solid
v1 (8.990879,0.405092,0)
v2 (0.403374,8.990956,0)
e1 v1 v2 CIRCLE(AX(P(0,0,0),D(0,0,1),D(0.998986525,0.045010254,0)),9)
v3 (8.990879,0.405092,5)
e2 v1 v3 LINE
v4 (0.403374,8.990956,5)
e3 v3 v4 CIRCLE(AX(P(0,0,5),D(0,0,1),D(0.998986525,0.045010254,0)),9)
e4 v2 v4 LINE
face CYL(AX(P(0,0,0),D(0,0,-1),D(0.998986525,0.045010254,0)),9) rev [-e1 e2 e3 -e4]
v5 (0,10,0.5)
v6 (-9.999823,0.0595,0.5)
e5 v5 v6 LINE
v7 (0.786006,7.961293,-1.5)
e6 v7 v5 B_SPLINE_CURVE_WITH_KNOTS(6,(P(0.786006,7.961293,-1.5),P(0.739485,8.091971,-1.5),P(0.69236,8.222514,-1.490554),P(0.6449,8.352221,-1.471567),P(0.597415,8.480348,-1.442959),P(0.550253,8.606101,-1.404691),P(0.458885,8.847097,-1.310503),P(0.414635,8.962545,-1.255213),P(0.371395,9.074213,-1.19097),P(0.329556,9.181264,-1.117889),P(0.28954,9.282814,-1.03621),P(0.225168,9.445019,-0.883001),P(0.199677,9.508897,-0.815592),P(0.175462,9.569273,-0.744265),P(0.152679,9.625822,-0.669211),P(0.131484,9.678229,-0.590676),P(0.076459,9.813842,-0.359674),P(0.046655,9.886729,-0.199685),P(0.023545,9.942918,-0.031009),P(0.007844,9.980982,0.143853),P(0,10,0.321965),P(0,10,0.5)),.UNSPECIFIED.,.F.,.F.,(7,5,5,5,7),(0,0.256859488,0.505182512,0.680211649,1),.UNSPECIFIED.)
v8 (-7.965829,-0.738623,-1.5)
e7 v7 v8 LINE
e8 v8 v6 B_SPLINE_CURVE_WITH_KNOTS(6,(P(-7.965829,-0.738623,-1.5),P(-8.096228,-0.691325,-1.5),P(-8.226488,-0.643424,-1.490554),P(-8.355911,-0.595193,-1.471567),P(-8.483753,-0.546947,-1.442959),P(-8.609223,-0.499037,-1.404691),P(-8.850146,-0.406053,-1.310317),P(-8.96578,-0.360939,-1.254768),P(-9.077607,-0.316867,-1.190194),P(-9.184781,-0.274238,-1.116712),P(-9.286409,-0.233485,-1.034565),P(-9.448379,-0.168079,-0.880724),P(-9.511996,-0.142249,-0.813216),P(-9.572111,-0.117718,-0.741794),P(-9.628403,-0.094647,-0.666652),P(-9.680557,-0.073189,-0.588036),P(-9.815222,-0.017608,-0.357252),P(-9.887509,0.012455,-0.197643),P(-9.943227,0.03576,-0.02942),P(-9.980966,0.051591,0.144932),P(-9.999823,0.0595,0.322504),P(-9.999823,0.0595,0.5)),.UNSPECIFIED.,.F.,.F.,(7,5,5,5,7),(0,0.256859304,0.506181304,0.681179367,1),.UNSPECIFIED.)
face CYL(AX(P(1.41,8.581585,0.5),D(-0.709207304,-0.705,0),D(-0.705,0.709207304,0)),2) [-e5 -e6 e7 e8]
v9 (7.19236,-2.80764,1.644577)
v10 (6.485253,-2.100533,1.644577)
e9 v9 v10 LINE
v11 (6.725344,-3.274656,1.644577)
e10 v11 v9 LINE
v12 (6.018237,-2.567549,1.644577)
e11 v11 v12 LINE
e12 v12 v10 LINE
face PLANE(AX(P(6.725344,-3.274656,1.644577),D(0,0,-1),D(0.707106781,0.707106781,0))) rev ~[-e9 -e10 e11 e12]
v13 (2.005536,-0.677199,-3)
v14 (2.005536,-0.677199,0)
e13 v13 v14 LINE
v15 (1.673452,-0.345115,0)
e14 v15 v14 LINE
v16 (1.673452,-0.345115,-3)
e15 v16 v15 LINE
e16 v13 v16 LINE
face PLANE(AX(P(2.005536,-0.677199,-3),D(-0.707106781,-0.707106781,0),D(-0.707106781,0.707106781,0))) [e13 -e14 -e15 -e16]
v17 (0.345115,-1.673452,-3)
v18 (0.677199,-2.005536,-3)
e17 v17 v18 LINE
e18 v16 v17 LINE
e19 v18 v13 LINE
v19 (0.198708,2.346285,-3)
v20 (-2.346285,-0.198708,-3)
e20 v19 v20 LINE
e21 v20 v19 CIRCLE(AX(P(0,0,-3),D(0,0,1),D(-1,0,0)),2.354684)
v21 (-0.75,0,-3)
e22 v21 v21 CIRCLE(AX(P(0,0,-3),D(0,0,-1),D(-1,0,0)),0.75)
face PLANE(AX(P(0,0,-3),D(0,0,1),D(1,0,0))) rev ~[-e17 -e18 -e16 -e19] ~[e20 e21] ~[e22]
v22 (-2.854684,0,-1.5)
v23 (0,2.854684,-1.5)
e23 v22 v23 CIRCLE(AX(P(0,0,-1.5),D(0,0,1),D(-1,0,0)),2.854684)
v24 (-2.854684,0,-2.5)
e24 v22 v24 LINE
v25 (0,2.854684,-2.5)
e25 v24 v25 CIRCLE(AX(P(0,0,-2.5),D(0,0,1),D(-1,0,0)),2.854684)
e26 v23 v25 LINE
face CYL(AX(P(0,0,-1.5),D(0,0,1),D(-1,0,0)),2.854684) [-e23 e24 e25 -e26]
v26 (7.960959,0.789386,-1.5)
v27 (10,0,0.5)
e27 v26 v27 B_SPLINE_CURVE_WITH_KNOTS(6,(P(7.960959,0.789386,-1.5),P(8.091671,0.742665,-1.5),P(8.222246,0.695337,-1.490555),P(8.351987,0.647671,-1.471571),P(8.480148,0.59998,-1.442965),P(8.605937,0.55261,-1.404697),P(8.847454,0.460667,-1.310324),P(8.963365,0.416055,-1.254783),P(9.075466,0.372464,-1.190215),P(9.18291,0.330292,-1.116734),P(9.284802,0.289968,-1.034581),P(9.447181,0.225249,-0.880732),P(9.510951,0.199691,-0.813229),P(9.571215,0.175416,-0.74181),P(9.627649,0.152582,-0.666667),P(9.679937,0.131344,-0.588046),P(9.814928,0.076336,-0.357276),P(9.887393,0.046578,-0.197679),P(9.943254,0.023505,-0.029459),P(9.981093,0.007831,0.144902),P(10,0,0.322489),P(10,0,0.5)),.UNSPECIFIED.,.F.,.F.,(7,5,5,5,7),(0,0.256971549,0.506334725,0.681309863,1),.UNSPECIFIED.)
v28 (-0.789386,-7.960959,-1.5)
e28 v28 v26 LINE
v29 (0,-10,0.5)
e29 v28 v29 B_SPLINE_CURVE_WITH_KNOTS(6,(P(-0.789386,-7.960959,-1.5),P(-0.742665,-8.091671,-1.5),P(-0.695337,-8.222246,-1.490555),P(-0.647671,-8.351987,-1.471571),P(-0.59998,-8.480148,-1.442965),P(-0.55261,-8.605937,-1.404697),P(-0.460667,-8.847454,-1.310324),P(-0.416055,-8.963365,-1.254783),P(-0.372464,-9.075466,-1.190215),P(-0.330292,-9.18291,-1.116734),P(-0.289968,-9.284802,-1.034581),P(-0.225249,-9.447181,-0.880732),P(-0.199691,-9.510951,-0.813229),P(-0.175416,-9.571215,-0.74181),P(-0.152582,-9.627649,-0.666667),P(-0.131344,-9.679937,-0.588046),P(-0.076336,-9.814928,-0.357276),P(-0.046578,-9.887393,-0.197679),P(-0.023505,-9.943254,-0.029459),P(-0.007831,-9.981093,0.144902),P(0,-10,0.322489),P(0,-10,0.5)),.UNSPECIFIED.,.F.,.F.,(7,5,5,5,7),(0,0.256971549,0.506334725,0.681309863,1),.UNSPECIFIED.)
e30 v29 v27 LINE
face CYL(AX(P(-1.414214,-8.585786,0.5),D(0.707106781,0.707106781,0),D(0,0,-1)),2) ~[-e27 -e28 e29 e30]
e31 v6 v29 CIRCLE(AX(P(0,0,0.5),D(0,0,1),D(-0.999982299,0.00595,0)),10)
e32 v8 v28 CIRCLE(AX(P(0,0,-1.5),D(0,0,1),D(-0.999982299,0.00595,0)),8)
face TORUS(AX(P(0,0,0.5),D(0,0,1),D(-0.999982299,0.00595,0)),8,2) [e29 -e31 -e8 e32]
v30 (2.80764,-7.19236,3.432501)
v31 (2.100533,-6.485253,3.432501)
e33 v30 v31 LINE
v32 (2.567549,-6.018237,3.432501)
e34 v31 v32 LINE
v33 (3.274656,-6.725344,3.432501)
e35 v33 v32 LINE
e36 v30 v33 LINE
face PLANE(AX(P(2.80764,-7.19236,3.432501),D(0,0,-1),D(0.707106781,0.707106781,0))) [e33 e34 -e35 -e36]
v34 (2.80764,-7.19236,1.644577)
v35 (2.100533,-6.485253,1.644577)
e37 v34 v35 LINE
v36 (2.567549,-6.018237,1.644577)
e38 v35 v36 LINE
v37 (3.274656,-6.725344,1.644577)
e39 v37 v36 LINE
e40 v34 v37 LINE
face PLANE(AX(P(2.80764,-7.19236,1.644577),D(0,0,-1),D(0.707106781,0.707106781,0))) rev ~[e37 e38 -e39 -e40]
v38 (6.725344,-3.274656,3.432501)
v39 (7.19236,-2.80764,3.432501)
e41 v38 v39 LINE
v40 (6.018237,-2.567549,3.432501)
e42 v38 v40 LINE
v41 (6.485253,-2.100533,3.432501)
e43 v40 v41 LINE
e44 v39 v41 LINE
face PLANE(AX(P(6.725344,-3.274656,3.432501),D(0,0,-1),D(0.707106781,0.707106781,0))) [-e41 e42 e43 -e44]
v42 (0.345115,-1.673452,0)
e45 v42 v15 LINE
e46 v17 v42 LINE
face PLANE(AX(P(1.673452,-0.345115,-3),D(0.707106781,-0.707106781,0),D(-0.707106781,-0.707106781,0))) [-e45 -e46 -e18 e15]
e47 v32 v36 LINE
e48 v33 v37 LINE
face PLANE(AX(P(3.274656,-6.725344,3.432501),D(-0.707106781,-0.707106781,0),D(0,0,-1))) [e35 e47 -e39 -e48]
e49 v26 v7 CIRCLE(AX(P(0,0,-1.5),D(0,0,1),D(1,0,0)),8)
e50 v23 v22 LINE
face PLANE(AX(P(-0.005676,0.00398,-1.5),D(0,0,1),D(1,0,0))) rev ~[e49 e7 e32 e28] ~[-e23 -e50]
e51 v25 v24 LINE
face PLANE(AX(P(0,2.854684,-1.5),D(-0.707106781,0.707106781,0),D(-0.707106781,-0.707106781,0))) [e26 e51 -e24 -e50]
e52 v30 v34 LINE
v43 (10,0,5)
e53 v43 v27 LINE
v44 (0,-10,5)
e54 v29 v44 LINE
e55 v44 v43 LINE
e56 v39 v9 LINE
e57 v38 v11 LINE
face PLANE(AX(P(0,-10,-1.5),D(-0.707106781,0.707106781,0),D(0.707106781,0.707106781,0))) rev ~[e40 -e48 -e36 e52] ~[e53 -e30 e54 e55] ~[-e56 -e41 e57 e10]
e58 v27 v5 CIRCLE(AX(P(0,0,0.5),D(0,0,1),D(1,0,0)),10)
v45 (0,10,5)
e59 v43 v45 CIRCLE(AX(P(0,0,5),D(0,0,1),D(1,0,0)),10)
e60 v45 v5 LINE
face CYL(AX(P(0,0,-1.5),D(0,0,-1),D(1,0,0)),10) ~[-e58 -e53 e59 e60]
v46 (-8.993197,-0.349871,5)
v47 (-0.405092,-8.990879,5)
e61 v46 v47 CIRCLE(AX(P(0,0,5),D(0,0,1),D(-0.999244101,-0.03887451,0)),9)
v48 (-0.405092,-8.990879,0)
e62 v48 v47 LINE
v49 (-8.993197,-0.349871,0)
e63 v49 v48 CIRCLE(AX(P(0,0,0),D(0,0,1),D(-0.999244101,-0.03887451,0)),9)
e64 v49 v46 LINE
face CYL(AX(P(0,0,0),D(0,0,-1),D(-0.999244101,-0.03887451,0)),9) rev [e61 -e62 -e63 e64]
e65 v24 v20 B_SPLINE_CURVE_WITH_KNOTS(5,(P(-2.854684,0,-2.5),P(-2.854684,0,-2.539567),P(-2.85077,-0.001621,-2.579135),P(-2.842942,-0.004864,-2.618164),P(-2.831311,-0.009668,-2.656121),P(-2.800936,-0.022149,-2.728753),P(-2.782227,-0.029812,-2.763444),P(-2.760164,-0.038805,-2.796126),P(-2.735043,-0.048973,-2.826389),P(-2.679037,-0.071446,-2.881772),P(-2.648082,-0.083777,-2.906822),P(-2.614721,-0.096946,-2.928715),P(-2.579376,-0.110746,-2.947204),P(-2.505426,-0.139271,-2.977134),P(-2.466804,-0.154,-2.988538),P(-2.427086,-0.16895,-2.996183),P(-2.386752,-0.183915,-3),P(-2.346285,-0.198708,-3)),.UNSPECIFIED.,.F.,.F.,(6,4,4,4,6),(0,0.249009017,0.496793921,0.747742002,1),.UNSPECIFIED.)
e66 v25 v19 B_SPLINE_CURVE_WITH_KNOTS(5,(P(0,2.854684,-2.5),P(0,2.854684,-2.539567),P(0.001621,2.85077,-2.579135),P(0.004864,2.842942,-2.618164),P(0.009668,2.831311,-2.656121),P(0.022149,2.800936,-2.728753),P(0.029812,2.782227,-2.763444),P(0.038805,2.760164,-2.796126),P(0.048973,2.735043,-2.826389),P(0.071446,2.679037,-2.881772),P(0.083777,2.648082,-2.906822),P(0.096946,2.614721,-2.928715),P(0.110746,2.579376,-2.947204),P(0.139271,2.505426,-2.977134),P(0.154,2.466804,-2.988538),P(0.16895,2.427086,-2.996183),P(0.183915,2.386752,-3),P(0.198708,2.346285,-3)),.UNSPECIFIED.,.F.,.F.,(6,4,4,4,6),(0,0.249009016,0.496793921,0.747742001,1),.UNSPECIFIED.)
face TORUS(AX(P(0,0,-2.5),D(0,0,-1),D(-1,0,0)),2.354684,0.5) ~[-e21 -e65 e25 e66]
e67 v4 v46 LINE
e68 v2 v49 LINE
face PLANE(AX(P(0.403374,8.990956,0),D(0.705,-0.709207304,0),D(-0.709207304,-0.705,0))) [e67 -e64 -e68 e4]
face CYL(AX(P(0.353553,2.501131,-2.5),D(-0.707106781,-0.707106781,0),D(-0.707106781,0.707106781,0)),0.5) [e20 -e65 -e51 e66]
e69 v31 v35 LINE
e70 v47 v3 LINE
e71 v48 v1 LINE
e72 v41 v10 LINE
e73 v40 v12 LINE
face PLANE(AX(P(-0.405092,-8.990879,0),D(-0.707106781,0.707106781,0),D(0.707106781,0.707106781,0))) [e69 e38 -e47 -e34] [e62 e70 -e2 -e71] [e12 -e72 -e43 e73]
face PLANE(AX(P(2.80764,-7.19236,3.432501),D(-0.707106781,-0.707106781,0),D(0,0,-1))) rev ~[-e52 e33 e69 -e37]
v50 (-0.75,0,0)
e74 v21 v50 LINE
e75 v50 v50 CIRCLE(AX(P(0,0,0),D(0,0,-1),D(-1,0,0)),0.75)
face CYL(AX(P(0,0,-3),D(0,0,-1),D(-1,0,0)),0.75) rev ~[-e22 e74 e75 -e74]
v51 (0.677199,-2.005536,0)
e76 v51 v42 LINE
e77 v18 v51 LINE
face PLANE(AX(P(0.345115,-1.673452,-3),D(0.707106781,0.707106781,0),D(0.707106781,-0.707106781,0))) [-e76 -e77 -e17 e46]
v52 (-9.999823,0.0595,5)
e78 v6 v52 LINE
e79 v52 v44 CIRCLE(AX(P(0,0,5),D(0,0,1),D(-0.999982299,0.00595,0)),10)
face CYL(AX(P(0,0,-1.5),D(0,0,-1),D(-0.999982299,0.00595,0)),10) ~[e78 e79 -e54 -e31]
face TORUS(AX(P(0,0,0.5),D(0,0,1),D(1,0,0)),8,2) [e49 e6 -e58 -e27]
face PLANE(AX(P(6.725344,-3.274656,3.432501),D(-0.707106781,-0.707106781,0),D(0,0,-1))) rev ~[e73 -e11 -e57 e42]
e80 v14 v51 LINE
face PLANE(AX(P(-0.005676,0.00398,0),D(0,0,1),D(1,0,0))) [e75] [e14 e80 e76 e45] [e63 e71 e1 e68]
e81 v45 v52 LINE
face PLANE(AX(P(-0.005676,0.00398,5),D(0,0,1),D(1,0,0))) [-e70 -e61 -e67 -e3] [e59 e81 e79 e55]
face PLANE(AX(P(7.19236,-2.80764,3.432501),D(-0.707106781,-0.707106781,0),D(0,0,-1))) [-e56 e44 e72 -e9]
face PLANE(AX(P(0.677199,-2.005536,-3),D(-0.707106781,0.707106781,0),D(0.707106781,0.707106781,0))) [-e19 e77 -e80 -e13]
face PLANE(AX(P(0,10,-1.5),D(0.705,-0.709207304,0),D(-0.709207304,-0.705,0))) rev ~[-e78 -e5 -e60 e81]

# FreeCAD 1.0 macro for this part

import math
import FreeCAD as App
import Part
import Sketcher

V = App.Vector
Q = App.Units.Quantity


def edges_at(feature, points):
    """Names of the edges that pass closest to the given points."""
    edges = feature.Shape.Edges
    near = lambda p: min(range(len(edges)), key=lambda i: edges[i].distToShape(Part.Vertex(*p))[0])
    return sorted({f"Edge{near(p) + 1}" for p in points})

doc = App.newDocument("Part")
body = doc.addObject("PartDesign::Body", "Body")

sketch1 = doc.addObject("Sketcher::SketchObject", "Sketch")
body.addObject(sketch1)
sketch1.AttachmentSupport = (doc.XY_Plane, [""])
sketch1.MapMode = "FlatFace"
sketch1.addGeometry([
    Part.LineSegment(V(0, 10, 0), V(-10, 0, 0)),
    Part.ArcOfCircle(Part.Circle(V(0, 0, 0), V(0, 0, 1), 10), math.radians(180), math.radians(270)),
    Part.LineSegment(V(0, -10, 0), V(10, 0, 0)),
    Part.ArcOfCircle(Part.Circle(V(0, 0, 0), V(0, 0, 1), 10), math.radians(0), math.radians(90)),
    Part.LineSegment(V(-9, 0, 0), V(0, 9, 0)),
    Part.ArcOfCircle(Part.Circle(V(0, 0, 0), V(0, 0, 1), 9), math.radians(3), math.radians(87)),
    Part.LineSegment(V(9, 0, 0), V(0, -9, 0)),
    Part.ArcOfCircle(Part.Circle(V(0, 0, 0), V(0, 0, 1), 9), math.radians(-178), math.radians(-93)),
], False)
sketch1.addConstraint([
    Sketcher.Constraint("Coincident", 0, 2, 1, 1),
    Sketcher.Constraint("Coincident", 1, 2, 2, 1),
    Sketcher.Constraint("Coincident", 2, 2, 3, 1),
    Sketcher.Constraint("Coincident", 3, 2, 0, 1),
    Sketcher.Constraint("Coincident", 4, 2, 5, 2),
    Sketcher.Constraint("Coincident", 5, 1, 6, 1),
    Sketcher.Constraint("Coincident", 6, 2, 7, 2),
    Sketcher.Constraint("Coincident", 7, 1, 4, 1),
    Sketcher.Constraint("Coincident", 1, 3, -1, 1),
    Sketcher.Constraint("Coincident", 3, 3, -1, 1),
    Sketcher.Constraint("Coincident", 5, 3, -1, 1),
    Sketcher.Constraint("Coincident", 7, 3, -1, 1),
    Sketcher.Constraint("Equal", 1, 3),
    Sketcher.Constraint("Equal", 5, 7),
    Sketcher.Constraint("PointOnObject", 1, 2, -2),
    Sketcher.Constraint("PointOnObject", 2, 2, -1),
    Sketcher.Constraint("PointOnObject", 3, 2, -2),
    Sketcher.Constraint("Parallel", 0, 4),
    Sketcher.Constraint("Parallel", 2, 6),
    Sketcher.Constraint("Radius", 1, Q("10 mm")),
    Sketcher.Constraint("Radius", 5, Q("9 mm")),
    Sketcher.Constraint("Distance", 0, Q("14.1 mm")),
    Sketcher.Constraint("Distance", 4, Q("13.249399 mm")),
    Sketcher.Constraint("Distance", 6, Q("13.28791 mm")),
])
pad1 = doc.addObject("PartDesign::Pad", "Pad")
body.addObject(pad1)
pad1.Profile = sketch1
pad1.Length = 5

sketch2 = doc.addObject("Sketcher::SketchObject", "Sketch001")
body.addObject(sketch2)
sketch2.AttachmentSupport = (doc.XY_Plane, [""])
sketch2.MapMode = "FlatFace"
sketch2.AttachmentOffset = App.Placement(V(0, 0, -1.5), App.Rotation())
sketch2.addGeometry([
    Part.LineSegment(V(-10, 0, 0), V(0, 10, 0)),
    Part.ArcOfCircle(Part.Circle(V(0, 0, 0), V(0, 0, 1), 10), math.radians(0), math.radians(90)),
    Part.LineSegment(V(10, 0, 0), V(0, -10, 0)),
    Part.ArcOfCircle(Part.Circle(V(0, 0, 0), V(0, 0, 1), 10), math.radians(180), math.radians(270)),
], False)
sketch2.addConstraint([
    Sketcher.Constraint("Coincident", 0, 2, 1, 2),
    Sketcher.Constraint("Coincident", 1, 1, 2, 1),
    Sketcher.Constraint("Coincident", 2, 2, 3, 2),
    Sketcher.Constraint("Coincident", 3, 1, 0, 1),
    Sketcher.Constraint("Coincident", 1, 3, -1, 1),
    Sketcher.Constraint("Coincident", 3, 3, -1, 1),
    Sketcher.Constraint("Equal", 1, 3),
    Sketcher.Constraint("PointOnObject", 0, 2, -2),
    Sketcher.Constraint("PointOnObject", 1, 1, -1),
    Sketcher.Constraint("PointOnObject", 2, 2, -2),
    Sketcher.Constraint("Radius", 1, Q("10 mm")),
    Sketcher.Constraint("Distance", 0, Q("14.1 mm")),
])
pad2 = doc.addObject("PartDesign::Pad", "Pad001")
body.addObject(pad2)
pad2.Profile = sketch2
pad2.Length = 1.5
doc.recompute()

fillet = doc.addObject("PartDesign::Fillet", "Fillet")
body.addObject(fillet)
fillet.Base = (pad2, edges_at(pad2, [
    (7.071, 7.071, -1.5),
    (5, -5, -1.5),
    (-7.092, -7.05, -1.5),
    (-5, 5.03, -1.5),
]))
fillet.Radius = 2

sketch3 = doc.addObject("Sketcher::SketchObject", "Sketch002")
body.addObject(sketch3)
sketch3.AttachmentSupport = (doc.XY_Plane, [""])
sketch3.MapMode = "FlatFace"
sketch3.AttachmentOffset = App.Placement(V(0, 0, -1.5), App.Rotation())
sketch3.addGeometry([
    Part.LineSegment(V(-2.9, 0, 0), V(0, 2.9, 0)),
    Part.ArcOfCircle(Part.Circle(V(0, 0, 0), V(0, 0, 1), 2.9), math.radians(180), math.radians(450)),
], False)
sketch3.addConstraint([
    Sketcher.Constraint("Coincident", 0, 1, 1, 1),
    Sketcher.Constraint("Coincident", 1, 2, 0, 2),
    Sketcher.Constraint("Coincident", 1, 3, -1, 1),
    Sketcher.Constraint("PointOnObject", 0, 1, -1),
    Sketcher.Constraint("PointOnObject", 1, 2, -2),
    Sketcher.Constraint("Radius", 1, Q("2.854684 mm")),
])
pad3 = doc.addObject("PartDesign::Pad", "Pad002")
body.addObject(pad3)
pad3.Profile = sketch3
pad3.Length = 1.5
pad3.Reversed = True

sketch4 = doc.addObject("Sketcher::SketchObject", "Sketch003")
body.addObject(sketch4)
sketch4.AttachmentSupport = (doc.XY_Plane, [""])
sketch4.MapMode = "FlatFace"
sketch4.AttachmentOffset = App.Placement(V(0, 0, -3), App.Rotation())
sketch4.addGeometry([
    Part.Circle(V(0, 0, 0), V(0, 0, 1), 0.75),
    Part.LineSegment(V(0.35, -1.67, 0), V(1.67, -0.35, 0)),
    Part.LineSegment(V(1.67, -0.35, 0), V(2.01, -0.68, 0)),
    Part.LineSegment(V(2.01, -0.68, 0), V(0.68, -2.01, 0)),
    Part.LineSegment(V(0.68, -2.01, 0), V(0.35, -1.67, 0)),
], False)
sketch4.addConstraint([
    Sketcher.Constraint("Coincident", 1, 2, 2, 1),
    Sketcher.Constraint("Coincident", 2, 2, 3, 1),
    Sketcher.Constraint("Coincident", 3, 2, 4, 1),
    Sketcher.Constraint("Coincident", 4, 2, 1, 1),
    Sketcher.Constraint("Coincident", 0, 3, -1, 1),
    Sketcher.Constraint("Perpendicular", 1, 2),
    Sketcher.Constraint("Perpendicular", 2, 3),
    Sketcher.Constraint("Perpendicular", 3, 4),
    Sketcher.Constraint("Diameter", 0, Q("1.5 mm")),
    Sketcher.Constraint("Angle", 1, Q("45 deg")),
    Sketcher.Constraint("DistanceY", 2, 2, -1, 1, Q("0.677199 mm")),
    Sketcher.Constraint("DistanceX", -1, 1, 3, 2, Q("0.677199 mm")),
    Sketcher.Constraint("Distance", 2, Q("0.469638 mm")),
    Sketcher.Constraint("DistanceX", -1, 1, 1, 2, Q("1.673452 mm")),
])
pocket1 = doc.addObject("PartDesign::Pocket", "Pocket")
body.addObject(pocket1)
pocket1.Profile = sketch4
pocket1.Type = "ThroughAll"
pocket1.Reversed = True

sketch5 = doc.addObject("Sketcher::SketchObject", "Sketch004")
body.addObject(sketch5)
sketch5.Placement = App.Placement(V(5, -5, 0), App.Rotation(V(0, 0, -1), V(0.707106781, 0.707106781, 0), V(0.707106781, -0.707106781, 0), "ZXY"))
sketch5.addGeometry([
    Part.LineSegment(V(-3.4, -2.4, 0), V(-3.4, -3.1, 0)),
    Part.LineSegment(V(-3.4, -3.1, 0), V(-1.6, -3.1, 0)),
    Part.LineSegment(V(-1.6, -3.1, 0), V(-1.6, -2.4, 0)),
    Part.LineSegment(V(-1.6, -2.4, 0), V(-3.4, -2.4, 0)),
    Part.LineSegment(V(-3.4, 3.1, 0), V(-3.4, 2.4, 0)),
    Part.LineSegment(V(-3.4, 2.4, 0), V(-1.6, 2.4, 0)),
    Part.LineSegment(V(-1.6, 2.4, 0), V(-1.6, 3.1, 0)),
    Part.LineSegment(V(-1.6, 3.1, 0), V(-3.4, 3.1, 0)),
], False)
sketch5.addConstraint([
    Sketcher.Constraint("Coincident", 0, 2, 1, 1),
    Sketcher.Constraint("Coincident", 1, 2, 2, 1),
    Sketcher.Constraint("Coincident", 2, 2, 3, 1),
    Sketcher.Constraint("Coincident", 3, 2, 0, 1),
    Sketcher.Constraint("Coincident", 4, 2, 5, 1),
    Sketcher.Constraint("Coincident", 5, 2, 6, 1),
    Sketcher.Constraint("Coincident", 6, 2, 7, 1),
    Sketcher.Constraint("Coincident", 7, 2, 4, 1),
    Sketcher.Constraint("Vertical", 0),
    Sketcher.Constraint("Horizontal", 1),
    Sketcher.Constraint("Vertical", 2),
    Sketcher.Constraint("Horizontal", 3),
    Sketcher.Constraint("Vertical", 4),
    Sketcher.Constraint("Horizontal", 5),
    Sketcher.Constraint("Vertical", 6),
    Sketcher.Constraint("Horizontal", 7),
    Sketcher.Constraint("Symmetric", 3, 2, 4, 2, -1),
    Sketcher.Constraint("Symmetric", 1, 2, 6, 2, -1),
    Sketcher.Constraint("DistanceY", 0, 2, 0, 1, Q("0.66046 mm")),
    Sketcher.Constraint("DistanceX", 0, 2, -1, 1, Q("3.432501 mm")),
    Sketcher.Constraint("DistanceX", 1, 1, 1, 2, Q("1.787925 mm")),
    Sketcher.Constraint("DistanceY", 3, 2, 4, 2, Q("4.88001 mm")),
])
pocket2 = doc.addObject("PartDesign::Pocket", "Pocket001")
body.addObject(pocket2)
pocket2.Profile = sketch5
pocket2.Length = 1
doc.recompute()

fillet2 = doc.addObject("PartDesign::Fillet", "Fillet001")
body.addObject(fillet2)
fillet2.Base = (pocket2, edges_at(pocket2, [(2.019, -2.019, -3), (-1.427, 1.427, -3)]))
fillet2.Radius = 0.5

doc.recompute()
